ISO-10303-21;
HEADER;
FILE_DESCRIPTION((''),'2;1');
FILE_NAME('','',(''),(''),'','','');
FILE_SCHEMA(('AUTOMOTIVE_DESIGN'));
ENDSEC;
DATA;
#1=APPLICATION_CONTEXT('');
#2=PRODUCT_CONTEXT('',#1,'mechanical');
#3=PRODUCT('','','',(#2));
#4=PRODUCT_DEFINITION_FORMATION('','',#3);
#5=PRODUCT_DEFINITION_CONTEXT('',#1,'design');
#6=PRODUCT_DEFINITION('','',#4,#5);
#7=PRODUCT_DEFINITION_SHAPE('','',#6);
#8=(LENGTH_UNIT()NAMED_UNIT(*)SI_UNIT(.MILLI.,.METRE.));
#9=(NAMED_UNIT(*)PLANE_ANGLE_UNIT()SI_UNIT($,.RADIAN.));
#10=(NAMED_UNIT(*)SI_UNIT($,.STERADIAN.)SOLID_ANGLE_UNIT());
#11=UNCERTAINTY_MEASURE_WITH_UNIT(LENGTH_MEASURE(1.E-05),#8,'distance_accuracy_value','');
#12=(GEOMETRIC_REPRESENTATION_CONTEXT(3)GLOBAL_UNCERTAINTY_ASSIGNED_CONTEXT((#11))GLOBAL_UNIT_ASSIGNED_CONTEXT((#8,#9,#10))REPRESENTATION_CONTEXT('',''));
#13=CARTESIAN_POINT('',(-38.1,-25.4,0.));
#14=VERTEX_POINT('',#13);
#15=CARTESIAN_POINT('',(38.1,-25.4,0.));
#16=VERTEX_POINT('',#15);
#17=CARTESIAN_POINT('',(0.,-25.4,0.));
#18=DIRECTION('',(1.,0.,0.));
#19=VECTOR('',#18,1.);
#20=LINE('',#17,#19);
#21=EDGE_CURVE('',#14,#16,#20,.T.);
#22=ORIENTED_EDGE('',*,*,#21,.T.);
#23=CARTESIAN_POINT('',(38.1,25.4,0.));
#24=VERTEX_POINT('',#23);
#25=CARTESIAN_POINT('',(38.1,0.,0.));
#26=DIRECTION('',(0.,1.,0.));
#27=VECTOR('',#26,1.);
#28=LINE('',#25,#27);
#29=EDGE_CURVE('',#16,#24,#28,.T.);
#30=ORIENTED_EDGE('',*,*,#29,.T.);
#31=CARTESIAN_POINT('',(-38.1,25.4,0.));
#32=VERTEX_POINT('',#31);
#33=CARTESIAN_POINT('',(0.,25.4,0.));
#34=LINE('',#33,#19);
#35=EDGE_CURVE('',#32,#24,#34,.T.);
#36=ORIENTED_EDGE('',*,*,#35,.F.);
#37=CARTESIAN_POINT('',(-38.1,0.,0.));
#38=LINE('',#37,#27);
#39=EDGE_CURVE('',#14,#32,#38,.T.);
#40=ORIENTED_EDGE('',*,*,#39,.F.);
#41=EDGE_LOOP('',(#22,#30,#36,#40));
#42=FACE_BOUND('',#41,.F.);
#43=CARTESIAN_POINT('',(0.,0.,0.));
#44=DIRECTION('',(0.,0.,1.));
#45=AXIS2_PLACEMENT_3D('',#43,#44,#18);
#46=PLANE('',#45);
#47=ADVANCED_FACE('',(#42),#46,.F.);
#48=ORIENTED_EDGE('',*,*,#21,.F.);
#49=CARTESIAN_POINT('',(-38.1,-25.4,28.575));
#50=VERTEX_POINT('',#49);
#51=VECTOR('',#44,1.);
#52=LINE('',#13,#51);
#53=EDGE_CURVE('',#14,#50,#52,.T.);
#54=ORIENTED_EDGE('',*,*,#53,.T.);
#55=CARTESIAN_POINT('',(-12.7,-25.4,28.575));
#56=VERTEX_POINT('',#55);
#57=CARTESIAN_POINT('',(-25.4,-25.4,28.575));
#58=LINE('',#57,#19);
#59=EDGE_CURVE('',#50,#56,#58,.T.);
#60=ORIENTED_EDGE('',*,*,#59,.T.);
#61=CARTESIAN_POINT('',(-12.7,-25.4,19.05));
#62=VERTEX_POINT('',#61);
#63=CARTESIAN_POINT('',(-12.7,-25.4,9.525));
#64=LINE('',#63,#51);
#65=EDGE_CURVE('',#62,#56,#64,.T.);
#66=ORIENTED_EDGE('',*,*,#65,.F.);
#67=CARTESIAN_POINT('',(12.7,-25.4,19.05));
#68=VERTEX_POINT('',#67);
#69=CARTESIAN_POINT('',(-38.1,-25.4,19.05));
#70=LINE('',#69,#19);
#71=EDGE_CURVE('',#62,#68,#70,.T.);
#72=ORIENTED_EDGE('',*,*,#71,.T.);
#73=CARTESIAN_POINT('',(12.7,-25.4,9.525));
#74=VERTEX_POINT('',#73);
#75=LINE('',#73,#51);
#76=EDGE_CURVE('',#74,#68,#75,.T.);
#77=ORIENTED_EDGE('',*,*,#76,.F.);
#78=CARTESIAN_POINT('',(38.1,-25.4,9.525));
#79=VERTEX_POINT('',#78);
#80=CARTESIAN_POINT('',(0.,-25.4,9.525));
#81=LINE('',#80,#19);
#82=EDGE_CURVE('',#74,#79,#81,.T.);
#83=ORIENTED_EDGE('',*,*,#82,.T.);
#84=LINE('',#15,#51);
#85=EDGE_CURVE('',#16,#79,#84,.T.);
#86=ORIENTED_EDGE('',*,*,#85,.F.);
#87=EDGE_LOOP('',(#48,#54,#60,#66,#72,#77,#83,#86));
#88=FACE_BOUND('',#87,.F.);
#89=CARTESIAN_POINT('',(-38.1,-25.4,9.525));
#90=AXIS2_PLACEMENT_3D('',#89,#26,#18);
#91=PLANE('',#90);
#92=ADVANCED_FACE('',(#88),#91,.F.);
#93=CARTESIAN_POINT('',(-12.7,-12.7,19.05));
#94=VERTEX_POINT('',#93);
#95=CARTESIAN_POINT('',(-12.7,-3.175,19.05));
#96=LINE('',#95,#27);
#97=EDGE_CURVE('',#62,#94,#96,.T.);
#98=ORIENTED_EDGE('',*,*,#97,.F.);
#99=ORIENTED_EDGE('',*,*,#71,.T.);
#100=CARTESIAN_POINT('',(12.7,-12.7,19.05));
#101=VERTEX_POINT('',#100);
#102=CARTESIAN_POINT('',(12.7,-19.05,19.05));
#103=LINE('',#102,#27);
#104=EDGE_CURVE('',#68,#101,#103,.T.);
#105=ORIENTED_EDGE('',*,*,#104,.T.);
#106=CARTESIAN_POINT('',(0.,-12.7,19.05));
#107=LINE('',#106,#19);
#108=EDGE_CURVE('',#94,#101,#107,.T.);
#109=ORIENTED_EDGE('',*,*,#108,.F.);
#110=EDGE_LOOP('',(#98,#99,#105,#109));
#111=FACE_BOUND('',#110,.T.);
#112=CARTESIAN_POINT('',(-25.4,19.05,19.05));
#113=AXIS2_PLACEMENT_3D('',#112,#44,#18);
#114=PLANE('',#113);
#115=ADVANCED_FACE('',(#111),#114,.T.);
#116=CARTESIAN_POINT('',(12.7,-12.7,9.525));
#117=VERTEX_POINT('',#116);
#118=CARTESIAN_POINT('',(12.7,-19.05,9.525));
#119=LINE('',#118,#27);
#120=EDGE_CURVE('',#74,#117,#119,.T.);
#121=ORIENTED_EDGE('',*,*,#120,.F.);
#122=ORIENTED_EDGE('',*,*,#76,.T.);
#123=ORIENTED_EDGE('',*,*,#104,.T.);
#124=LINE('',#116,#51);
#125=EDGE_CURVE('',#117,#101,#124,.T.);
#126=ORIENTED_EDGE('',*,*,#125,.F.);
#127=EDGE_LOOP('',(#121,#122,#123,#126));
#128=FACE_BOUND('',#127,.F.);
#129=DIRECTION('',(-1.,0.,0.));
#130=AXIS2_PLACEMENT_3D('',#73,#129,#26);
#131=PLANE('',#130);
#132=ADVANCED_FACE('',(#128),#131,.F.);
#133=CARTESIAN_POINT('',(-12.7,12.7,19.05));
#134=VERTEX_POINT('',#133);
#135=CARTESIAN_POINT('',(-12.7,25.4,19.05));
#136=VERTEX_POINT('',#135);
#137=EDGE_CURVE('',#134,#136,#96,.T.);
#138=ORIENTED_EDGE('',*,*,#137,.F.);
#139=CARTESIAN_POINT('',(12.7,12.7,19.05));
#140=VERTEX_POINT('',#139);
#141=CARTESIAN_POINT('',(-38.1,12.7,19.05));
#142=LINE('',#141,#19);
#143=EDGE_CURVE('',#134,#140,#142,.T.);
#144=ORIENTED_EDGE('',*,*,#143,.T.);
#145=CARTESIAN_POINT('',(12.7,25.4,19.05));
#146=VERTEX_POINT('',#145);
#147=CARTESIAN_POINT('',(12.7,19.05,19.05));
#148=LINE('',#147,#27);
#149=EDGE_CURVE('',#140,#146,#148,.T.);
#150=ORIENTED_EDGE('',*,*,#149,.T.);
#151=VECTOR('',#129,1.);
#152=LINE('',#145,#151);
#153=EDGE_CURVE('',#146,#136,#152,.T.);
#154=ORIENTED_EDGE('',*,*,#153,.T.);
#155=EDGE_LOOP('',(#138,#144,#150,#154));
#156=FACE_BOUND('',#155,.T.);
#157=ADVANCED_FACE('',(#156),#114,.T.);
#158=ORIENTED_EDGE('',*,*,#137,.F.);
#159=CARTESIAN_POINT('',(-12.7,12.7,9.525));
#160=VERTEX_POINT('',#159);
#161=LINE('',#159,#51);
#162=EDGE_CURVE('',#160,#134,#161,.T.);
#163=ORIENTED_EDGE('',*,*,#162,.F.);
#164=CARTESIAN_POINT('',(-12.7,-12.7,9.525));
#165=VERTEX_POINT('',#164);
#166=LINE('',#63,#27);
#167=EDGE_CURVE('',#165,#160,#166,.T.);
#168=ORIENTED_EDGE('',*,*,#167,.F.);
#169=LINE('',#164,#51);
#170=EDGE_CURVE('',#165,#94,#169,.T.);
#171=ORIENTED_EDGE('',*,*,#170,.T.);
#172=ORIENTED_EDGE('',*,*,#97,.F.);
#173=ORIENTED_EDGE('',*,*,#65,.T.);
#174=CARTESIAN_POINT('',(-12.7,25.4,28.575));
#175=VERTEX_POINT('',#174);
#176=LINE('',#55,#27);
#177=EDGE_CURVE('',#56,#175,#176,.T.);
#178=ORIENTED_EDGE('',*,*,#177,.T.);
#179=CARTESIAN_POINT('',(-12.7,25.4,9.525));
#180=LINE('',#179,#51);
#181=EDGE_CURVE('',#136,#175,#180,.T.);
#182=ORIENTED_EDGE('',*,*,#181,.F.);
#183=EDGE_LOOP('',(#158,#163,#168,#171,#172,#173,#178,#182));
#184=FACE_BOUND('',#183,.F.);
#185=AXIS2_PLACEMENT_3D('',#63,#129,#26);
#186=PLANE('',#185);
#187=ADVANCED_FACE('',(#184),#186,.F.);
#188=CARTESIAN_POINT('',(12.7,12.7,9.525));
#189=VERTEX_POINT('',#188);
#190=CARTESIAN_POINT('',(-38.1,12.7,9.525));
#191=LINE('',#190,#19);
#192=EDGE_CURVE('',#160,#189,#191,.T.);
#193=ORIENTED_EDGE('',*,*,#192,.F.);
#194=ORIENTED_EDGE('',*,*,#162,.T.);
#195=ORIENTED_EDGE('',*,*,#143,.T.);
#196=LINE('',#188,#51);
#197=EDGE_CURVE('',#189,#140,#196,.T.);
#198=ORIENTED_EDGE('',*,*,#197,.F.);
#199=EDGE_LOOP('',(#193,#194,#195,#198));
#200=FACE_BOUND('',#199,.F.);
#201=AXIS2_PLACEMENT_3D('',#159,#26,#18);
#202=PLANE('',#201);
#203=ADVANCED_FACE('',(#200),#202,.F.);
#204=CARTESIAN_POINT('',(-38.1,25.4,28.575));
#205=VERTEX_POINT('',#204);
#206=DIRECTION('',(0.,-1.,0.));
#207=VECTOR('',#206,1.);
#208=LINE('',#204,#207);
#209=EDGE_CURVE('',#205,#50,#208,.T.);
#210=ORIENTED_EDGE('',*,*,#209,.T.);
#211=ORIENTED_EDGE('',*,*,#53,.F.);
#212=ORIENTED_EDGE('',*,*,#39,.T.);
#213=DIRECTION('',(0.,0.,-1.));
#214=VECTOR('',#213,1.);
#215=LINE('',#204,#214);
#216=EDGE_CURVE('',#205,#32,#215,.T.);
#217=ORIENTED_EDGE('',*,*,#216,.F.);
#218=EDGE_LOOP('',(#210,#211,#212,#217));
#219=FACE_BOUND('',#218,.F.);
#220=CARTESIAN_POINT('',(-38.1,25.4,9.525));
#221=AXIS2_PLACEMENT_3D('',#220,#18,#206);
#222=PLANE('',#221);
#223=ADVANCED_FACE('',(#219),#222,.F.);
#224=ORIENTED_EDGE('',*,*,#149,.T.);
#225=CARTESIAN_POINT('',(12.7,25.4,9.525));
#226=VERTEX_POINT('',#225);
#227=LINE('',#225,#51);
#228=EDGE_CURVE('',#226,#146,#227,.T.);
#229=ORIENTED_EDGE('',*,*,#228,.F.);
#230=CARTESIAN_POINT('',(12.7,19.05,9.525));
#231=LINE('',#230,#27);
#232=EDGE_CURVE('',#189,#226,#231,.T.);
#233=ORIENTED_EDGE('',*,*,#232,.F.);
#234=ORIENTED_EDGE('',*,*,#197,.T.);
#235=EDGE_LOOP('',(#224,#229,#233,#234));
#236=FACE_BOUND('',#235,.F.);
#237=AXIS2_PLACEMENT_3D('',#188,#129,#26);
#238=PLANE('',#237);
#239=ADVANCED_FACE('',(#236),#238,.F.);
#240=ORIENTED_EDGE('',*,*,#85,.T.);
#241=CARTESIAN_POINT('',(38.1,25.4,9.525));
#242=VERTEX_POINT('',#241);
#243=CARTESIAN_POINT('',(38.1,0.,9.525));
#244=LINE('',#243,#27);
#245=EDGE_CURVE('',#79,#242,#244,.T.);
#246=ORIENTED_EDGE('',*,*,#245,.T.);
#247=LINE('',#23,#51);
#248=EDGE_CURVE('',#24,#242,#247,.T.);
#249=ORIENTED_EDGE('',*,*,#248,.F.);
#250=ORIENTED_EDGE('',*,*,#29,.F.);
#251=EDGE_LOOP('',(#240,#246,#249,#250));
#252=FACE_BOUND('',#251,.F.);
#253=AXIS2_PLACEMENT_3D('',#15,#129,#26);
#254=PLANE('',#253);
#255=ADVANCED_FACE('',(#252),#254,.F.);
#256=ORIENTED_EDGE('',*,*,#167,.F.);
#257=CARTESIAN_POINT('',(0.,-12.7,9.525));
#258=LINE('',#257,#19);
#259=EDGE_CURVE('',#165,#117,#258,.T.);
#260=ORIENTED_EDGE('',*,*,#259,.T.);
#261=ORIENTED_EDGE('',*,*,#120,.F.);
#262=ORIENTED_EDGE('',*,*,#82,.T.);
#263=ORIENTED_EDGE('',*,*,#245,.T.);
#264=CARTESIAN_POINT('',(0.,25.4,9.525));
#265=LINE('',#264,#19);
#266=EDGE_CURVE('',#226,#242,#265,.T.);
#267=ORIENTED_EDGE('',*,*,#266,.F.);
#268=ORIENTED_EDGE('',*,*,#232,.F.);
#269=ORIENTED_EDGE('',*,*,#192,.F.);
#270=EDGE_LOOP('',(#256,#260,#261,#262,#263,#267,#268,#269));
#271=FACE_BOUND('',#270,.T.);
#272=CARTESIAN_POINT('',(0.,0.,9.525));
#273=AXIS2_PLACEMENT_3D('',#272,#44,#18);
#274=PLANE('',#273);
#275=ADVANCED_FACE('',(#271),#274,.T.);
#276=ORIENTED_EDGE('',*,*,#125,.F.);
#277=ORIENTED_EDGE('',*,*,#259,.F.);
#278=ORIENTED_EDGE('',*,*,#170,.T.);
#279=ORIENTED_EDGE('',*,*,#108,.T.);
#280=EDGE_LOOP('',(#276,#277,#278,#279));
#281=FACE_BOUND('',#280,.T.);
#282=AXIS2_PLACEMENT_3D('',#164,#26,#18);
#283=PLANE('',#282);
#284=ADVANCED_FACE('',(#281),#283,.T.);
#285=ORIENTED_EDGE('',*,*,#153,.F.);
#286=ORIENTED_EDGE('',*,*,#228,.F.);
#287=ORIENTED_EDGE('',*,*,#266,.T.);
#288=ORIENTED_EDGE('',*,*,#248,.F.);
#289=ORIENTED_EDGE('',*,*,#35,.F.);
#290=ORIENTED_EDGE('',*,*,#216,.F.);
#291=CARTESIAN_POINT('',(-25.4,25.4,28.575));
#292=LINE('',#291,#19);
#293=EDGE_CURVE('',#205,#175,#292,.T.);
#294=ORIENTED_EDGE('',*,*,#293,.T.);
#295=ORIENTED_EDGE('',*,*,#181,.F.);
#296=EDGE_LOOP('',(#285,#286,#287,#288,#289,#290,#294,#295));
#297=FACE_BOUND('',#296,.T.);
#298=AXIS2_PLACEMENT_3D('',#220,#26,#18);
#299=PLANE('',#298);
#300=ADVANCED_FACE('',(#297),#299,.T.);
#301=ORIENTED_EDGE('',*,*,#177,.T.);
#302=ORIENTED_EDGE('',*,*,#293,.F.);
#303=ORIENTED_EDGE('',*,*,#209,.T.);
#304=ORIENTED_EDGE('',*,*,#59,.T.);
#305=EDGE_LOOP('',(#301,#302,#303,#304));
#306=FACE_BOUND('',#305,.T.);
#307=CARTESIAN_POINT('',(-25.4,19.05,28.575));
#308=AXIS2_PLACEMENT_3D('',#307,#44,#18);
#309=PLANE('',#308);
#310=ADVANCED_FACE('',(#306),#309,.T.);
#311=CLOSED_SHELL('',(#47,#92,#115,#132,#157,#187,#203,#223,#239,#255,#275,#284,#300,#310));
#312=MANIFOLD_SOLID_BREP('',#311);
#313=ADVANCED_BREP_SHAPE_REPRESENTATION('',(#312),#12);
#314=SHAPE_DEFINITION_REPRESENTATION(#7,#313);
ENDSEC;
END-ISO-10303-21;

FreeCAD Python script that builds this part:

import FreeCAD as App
import Part
import Sketcher
Q = App.Units.Quantity

doc = App.newDocument("Part")
body = doc.addObject("PartDesign::Body", "Body")

# Sketch on XY plane
sketch1 = doc.addObject("Sketcher::SketchObject", "Sketch")
body.addObject(sketch1)
sketch1.AttachmentSupport = (doc.XY_Plane, [""])
sketch1.MapMode = "FlatFace"
sketch1.addGeometry([
    Part.LineSegment(App.Vector(-38, 25, 0), App.Vector(-38, -25, 0)),
    Part.LineSegment(App.Vector(-38, -25, 0), App.Vector(38, -25, 0)),
    Part.LineSegment(App.Vector(38, -25, 0), App.Vector(38, 25, 0)),
    Part.LineSegment(App.Vector(38, 25, 0), App.Vector(-38, 25, 0)),
], False)
sketch1.addConstraint([
    Sketcher.Constraint("Coincident", 0, 2, 1, 1),
    Sketcher.Constraint("Coincident", 1, 2, 2, 1),
    Sketcher.Constraint("Coincident", 2, 2, 3, 1),
    Sketcher.Constraint("Coincident", 3, 2, 0, 1),
    Sketcher.Constraint("Vertical", 0),
    Sketcher.Constraint("Horizontal", 1),
    Sketcher.Constraint("Vertical", 2),
    Sketcher.Constraint("Horizontal", 3),
    Sketcher.Constraint("Symmetric", 0, 2, 2, 2, -1, 1),
    Sketcher.Constraint("DistanceX", 1, 1, 1, 2, Q("3 in")),
    Sketcher.Constraint("DistanceY", 0, 2, 0, 1, Q("2 in")),
])
pad1 = doc.addObject("PartDesign::Pad", "Pad")
body.addObject(pad1)
pad1.Profile = sketch1
pad1.Length = Q("0.375 in")

# Sketch on XY plane
sketch2 = doc.addObject("Sketcher::SketchObject", "Sketch001")
body.addObject(sketch2)
sketch2.AttachmentSupport = (doc.XY_Plane, [""])
sketch2.MapMode = "FlatFace"
sketch2.AttachmentOffset = App.Placement(App.Vector(0, 0, 0.375 * 25.4), App.Rotation())
sketch2.addGeometry([
    Part.LineSegment(App.Vector(-38, 25, 0), App.Vector(-38, -25, 0)),
    Part.LineSegment(App.Vector(-38, -25, 0), App.Vector(-13, -25, 0)),
    Part.LineSegment(App.Vector(-13, -25, 0), App.Vector(-13, 25, 0)),
    Part.LineSegment(App.Vector(-13, 25, 0), App.Vector(-38, 25, 0)),
], False)
sketch2.addConstraint([
    Sketcher.Constraint("Coincident", 0, 2, 1, 1),
    Sketcher.Constraint("Coincident", 1, 2, 2, 1),
    Sketcher.Constraint("Coincident", 2, 2, 3, 1),
    Sketcher.Constraint("Coincident", 3, 2, 0, 1),
    Sketcher.Constraint("Vertical", 0),
    Sketcher.Constraint("Horizontal", 1),
    Sketcher.Constraint("Vertical", 2),
    Sketcher.Constraint("Horizontal", 3),
    Sketcher.Constraint("DistanceX", 1, 1, 1, 2, Q("1 in")),
    Sketcher.Constraint("DistanceY", 0, 2, 0, 1, Q("2 in")),
    Sketcher.Constraint("DistanceY", 0, 2, -1, 1, Q("1 in")),
    Sketcher.Constraint("DistanceX", 0, 2, -1, 1, Q("1.5 in")),
])
pad2 = doc.addObject("PartDesign::Pad", "Pad001")
body.addObject(pad2)
pad2.Profile = sketch2
pad2.Length = Q("0.75 in")

# Sketch on XY plane
sketch3 = doc.addObject("Sketcher::SketchObject", "Sketch002")
body.addObject(sketch3)
sketch3.AttachmentSupport = (doc.XY_Plane, [""])
sketch3.MapMode = "FlatFace"
sketch3.AttachmentOffset = App.Placement(App.Vector(0, 0, 0.375 * 25.4), App.Rotation())
sketch3.addGeometry([
    Part.LineSegment(App.Vector(-38, 25, 0), App.Vector(-38, -25, 0)),  # 0
    Part.LineSegment(App.Vector(-38, -25, 0), App.Vector(13, -25, 0)),  # 1
    Part.LineSegment(App.Vector(13, -25, 0), App.Vector(13, -13, 0)),  # 2
    Part.LineSegment(App.Vector(13, -13, 0), App.Vector(-13, -13, 0)),  # 3
    Part.LineSegment(App.Vector(-13, -13, 0), App.Vector(-13, 13, 0)),  # 4
    Part.LineSegment(App.Vector(-13, 13, 0), App.Vector(13, 13, 0)),  # 5
    Part.LineSegment(App.Vector(13, 13, 0), App.Vector(13, 25, 0)),  # 6
    Part.LineSegment(App.Vector(13, 25, 0), App.Vector(-38, 25, 0)),  # 7
], False)
sketch3.addConstraint([
    Sketcher.Constraint("Coincident", 0, 2, 1, 1),
    Sketcher.Constraint("Coincident", 1, 2, 2, 1),
    Sketcher.Constraint("Coincident", 2, 2, 3, 1),
    Sketcher.Constraint("Coincident", 3, 2, 4, 1),
    Sketcher.Constraint("Coincident", 4, 2, 5, 1),
    Sketcher.Constraint("Coincident", 5, 2, 6, 1),
    Sketcher.Constraint("Coincident", 6, 2, 7, 1),
    Sketcher.Constraint("Coincident", 7, 2, 0, 1),
    Sketcher.Constraint("Vertical", 0),
    Sketcher.Constraint("Horizontal", 1),
    Sketcher.Constraint("Vertical", 2),
    Sketcher.Constraint("Horizontal", 3),
    Sketcher.Constraint("Vertical", 4),
    Sketcher.Constraint("Horizontal", 5),
    Sketcher.Constraint("Vertical", 6),
    Sketcher.Constraint("Horizontal", 7),
    Sketcher.Constraint("Symmetric", 2, 2, 4, 2, -1, 1),
    Sketcher.Constraint("Symmetric", 1, 2, 6, 2, -1),
    Sketcher.Constraint("Equal", 7, 0),
    Sketcher.Constraint("Equal", 5, 4),
    Sketcher.Constraint("DistanceX", 1, 1, 1, 2, Q("2 in")),
    Sketcher.Constraint("DistanceX", 3, 2, 3, 1, Q("1 in")),
])
pad3 = doc.addObject("PartDesign::Pad", "Pad002")
body.addObject(pad3)
pad3.Profile = sketch3
pad3.Length = Q("0.375 in")

doc.recompute()
